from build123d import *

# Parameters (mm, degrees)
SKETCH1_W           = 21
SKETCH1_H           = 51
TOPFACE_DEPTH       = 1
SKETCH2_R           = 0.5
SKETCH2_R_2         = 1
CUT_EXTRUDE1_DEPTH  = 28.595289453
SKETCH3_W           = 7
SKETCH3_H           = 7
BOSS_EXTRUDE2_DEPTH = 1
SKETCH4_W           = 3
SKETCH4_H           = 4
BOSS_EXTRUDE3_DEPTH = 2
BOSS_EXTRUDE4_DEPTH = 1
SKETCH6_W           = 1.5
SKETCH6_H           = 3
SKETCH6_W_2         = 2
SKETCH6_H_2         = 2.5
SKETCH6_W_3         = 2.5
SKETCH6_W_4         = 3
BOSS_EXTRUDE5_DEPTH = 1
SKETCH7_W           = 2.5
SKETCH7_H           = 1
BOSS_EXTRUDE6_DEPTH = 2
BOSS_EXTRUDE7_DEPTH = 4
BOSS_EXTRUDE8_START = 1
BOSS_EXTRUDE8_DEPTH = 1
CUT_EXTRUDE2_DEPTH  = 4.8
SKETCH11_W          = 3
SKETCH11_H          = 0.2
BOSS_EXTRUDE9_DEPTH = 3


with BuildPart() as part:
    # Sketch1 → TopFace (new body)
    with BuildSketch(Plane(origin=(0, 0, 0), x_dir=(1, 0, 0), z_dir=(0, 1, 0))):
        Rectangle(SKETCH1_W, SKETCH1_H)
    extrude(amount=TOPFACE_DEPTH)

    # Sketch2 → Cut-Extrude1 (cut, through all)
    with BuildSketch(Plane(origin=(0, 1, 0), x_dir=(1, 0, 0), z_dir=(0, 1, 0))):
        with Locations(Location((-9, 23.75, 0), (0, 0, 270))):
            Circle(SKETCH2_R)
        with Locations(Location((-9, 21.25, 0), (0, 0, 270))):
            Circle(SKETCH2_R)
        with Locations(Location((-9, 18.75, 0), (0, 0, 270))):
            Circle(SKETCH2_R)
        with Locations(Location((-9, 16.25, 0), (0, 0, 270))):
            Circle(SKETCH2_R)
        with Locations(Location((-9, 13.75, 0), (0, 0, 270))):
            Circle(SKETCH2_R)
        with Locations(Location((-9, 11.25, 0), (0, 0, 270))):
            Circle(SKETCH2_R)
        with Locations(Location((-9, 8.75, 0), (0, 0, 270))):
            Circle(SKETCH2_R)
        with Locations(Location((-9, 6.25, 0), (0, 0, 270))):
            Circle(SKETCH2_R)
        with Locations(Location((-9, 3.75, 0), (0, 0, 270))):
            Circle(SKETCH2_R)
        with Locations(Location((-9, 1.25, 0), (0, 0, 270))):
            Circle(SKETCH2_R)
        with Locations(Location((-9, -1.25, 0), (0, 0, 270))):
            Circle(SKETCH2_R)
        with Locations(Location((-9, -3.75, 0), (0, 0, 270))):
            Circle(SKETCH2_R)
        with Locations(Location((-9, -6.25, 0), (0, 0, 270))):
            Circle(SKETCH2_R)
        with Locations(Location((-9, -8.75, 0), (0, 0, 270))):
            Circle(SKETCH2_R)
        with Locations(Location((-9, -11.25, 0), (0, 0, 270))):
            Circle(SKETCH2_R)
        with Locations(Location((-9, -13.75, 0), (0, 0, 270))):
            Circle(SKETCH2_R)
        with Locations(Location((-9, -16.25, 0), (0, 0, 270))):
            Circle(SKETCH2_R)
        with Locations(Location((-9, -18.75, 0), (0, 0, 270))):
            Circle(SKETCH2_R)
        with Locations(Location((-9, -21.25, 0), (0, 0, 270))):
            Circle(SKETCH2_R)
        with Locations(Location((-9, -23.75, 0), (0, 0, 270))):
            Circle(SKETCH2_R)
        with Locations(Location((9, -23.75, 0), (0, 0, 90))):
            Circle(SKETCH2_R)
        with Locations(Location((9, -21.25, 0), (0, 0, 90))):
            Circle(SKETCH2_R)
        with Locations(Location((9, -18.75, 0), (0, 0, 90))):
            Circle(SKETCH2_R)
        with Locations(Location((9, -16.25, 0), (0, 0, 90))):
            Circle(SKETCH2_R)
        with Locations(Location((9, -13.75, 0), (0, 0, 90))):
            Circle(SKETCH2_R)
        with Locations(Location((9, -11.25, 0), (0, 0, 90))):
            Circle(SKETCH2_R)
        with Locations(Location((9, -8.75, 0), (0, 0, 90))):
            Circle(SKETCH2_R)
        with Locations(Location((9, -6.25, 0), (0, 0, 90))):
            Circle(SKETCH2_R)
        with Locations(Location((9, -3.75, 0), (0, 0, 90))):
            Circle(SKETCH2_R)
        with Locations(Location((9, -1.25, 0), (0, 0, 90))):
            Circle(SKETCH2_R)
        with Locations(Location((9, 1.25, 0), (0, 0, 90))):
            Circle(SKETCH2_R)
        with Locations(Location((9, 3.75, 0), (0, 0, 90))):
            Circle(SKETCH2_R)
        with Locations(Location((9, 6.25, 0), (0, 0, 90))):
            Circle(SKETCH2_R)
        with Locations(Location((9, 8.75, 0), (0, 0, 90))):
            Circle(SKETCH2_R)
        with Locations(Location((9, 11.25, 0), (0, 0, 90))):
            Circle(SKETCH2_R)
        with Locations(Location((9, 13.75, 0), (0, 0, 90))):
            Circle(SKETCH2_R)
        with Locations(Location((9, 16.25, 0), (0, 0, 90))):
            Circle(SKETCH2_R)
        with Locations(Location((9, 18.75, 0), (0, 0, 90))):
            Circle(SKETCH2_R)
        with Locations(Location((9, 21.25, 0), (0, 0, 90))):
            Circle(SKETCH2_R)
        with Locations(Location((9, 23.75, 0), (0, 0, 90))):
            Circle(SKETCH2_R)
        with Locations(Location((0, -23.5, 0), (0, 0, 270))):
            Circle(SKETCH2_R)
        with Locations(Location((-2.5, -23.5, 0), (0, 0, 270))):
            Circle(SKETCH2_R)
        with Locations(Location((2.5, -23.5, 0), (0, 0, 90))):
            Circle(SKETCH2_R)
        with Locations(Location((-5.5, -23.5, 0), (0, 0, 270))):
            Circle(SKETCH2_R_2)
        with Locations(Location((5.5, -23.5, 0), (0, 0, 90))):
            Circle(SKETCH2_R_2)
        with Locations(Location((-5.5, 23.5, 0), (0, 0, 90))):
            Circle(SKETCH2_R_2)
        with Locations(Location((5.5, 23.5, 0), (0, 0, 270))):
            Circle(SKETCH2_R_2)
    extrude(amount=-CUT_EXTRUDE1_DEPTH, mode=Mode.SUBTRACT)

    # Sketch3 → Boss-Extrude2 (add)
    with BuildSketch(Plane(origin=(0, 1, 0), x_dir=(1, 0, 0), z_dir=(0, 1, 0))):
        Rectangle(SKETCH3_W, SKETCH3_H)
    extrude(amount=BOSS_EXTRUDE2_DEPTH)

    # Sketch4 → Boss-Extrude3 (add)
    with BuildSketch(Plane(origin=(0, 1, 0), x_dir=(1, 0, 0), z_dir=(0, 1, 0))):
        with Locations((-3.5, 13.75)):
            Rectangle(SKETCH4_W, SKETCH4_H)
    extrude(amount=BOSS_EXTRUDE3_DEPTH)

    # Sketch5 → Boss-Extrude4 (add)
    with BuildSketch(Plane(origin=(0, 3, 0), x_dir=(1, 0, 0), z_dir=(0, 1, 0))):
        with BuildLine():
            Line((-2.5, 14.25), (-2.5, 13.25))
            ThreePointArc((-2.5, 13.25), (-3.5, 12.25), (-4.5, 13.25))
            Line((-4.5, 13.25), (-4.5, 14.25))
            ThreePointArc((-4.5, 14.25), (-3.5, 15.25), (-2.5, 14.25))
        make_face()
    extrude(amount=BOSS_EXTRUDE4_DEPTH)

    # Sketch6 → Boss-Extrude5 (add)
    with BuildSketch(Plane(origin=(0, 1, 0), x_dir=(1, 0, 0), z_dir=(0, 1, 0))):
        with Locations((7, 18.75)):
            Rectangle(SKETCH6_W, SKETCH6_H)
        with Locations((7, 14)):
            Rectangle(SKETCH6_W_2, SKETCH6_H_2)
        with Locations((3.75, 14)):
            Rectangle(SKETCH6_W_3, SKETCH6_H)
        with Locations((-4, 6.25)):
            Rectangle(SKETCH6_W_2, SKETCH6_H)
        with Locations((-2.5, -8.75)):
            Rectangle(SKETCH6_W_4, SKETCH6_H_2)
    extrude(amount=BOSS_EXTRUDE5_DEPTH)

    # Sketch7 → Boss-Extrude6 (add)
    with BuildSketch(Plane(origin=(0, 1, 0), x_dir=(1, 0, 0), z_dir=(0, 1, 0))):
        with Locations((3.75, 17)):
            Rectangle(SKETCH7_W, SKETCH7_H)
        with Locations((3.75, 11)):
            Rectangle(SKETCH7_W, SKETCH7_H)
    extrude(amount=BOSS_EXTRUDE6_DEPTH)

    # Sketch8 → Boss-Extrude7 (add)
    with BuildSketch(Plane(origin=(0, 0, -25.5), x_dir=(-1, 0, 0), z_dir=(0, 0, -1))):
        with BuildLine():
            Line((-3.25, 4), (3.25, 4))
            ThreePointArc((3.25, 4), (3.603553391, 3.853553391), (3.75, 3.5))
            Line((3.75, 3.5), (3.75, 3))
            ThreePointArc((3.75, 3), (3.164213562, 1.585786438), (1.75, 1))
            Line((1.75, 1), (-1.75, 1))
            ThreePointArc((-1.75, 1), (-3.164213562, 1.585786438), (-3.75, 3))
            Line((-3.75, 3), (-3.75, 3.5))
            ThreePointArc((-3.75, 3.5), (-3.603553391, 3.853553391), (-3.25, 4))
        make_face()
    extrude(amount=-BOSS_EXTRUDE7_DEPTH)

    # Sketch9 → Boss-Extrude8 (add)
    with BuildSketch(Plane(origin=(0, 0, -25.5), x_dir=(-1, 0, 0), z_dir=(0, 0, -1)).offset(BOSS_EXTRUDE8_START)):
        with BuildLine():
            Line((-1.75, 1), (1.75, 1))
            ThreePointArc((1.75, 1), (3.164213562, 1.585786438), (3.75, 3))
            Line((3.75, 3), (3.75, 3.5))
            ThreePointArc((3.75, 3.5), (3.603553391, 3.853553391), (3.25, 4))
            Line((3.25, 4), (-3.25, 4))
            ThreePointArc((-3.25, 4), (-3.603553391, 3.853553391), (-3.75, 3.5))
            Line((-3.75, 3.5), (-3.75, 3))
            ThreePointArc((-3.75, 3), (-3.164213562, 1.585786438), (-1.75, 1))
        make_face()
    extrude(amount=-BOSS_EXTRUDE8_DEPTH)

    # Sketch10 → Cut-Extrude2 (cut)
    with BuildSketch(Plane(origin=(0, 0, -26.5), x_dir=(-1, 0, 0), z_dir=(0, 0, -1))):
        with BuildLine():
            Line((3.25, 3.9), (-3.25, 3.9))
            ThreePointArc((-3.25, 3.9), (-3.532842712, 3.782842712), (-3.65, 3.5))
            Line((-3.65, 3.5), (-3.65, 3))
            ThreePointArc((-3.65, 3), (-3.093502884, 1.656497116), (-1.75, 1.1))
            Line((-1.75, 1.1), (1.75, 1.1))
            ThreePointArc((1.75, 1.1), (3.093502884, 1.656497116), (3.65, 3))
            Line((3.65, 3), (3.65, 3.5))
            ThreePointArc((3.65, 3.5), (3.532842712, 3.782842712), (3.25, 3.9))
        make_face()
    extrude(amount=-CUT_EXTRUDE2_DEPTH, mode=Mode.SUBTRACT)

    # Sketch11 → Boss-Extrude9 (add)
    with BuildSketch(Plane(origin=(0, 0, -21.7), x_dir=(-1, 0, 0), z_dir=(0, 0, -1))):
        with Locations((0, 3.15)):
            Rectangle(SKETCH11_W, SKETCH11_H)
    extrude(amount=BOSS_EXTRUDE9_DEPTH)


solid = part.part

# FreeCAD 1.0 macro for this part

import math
import FreeCAD as App
import Part
import Sketcher

doc = App.newDocument("Part")
body = doc.addObject("PartDesign::Body", "Body")

sketch1 = body.newObject("Sketcher::SketchObject", "Sketch")
sketch1.AttachmentSupport = (doc.getObject("XZ_Plane"), [""])
sketch1.MapMode = "FlatFace"
sketch1.addGeometry([
    Part.LineSegment(App.Vector(-10.5, -25.5, 0), App.Vector(-10.5, 25.5, 0)),
    Part.LineSegment(App.Vector(-10.5, 25.5, 0), App.Vector(10.5, 25.5, 0)),
    Part.LineSegment(App.Vector(10.5, 25.5, 0), App.Vector(10.5, -25.5, 0)),
    Part.LineSegment(App.Vector(10.5, -25.5, 0), App.Vector(-10.5, -25.5, 0)),
], False)
sketch1.addConstraint([
    Sketcher.Constraint("Coincident", 0, 2, 1, 1),
    Sketcher.Constraint("Coincident", 1, 2, 2, 1),
    Sketcher.Constraint("Coincident", 2, 2, 3, 1),
    Sketcher.Constraint("Coincident", 3, 2, 0, 1),
    Sketcher.Constraint("Vertical", 0),
    Sketcher.Constraint("Horizontal", 1),
    Sketcher.Constraint("Vertical", 2),
    Sketcher.Constraint("Horizontal", 3),
    Sketcher.Constraint("Symmetric", 0, 2, 2, 2, -1, 1),
    Sketcher.Constraint("DistanceX", 1, 1, 1, 2, 21.0),
    Sketcher.Constraint("DistanceY", 0, 1, 0, 2, 51.0),
])
pad1 = body.newObject("PartDesign::Pad", "Pad")
pad1.Profile = sketch1
pad1.Length = 1
pad1.Reversed = True

sketch2 = body.newObject("Sketcher::SketchObject", "Sketch001")
sketch2.AttachmentSupport = (doc.getObject("XZ_Plane"), [""])
sketch2.MapMode = "FlatFace"
sketch2.AttachmentOffset = App.Placement(App.Vector(0, 0, -1), App.Rotation())
sketch2.addGeometry([
    Part.Circle(App.Vector(-9, -23.75, 0), App.Vector(0, 0, 1), 0.5),
    Part.Circle(App.Vector(-9, -21.25, 0), App.Vector(0, 0, 1), 0.5),
    Part.Circle(App.Vector(-9, -18.75, 0), App.Vector(0, 0, 1), 0.5),
    Part.Circle(App.Vector(-9, -16.25, 0), App.Vector(0, 0, 1), 0.5),
    Part.Circle(App.Vector(-9, -13.75, 0), App.Vector(0, 0, 1), 0.5),
    Part.Circle(App.Vector(-9, -11.25, 0), App.Vector(0, 0, 1), 0.5),
    Part.Circle(App.Vector(-9, -8.75, 0), App.Vector(0, 0, 1), 0.5),
    Part.Circle(App.Vector(-9, -6.25, 0), App.Vector(0, 0, 1), 0.5),
    Part.Circle(App.Vector(-9, -3.75, 0), App.Vector(0, 0, 1), 0.5),
    Part.Circle(App.Vector(-9, -1.25, 0), App.Vector(0, 0, 1), 0.5),
    Part.Circle(App.Vector(-9, 1.25, 0), App.Vector(0, 0, 1), 0.5),
    Part.Circle(App.Vector(-9, 3.75, 0), App.Vector(0, 0, 1), 0.5),
    Part.Circle(App.Vector(-9, 6.25, 0), App.Vector(0, 0, 1), 0.5),
    Part.Circle(App.Vector(-9, 8.75, 0), App.Vector(0, 0, 1), 0.5),
    Part.Circle(App.Vector(-9, 11.25, 0), App.Vector(0, 0, 1), 0.5),
    Part.Circle(App.Vector(-9, 13.75, 0), App.Vector(0, 0, 1), 0.5),
    Part.Circle(App.Vector(-9, 16.25, 0), App.Vector(0, 0, 1), 0.5),
    Part.Circle(App.Vector(-9, 18.75, 0), App.Vector(0, 0, 1), 0.5),
    Part.Circle(App.Vector(-9, 21.25, 0), App.Vector(0, 0, 1), 0.5),
    Part.Circle(App.Vector(-9, 23.75, 0), App.Vector(0, 0, 1), 0.5),
    Part.Circle(App.Vector(9, 23.75, 0), App.Vector(0, 0, 1), 0.5),
    Part.Circle(App.Vector(9, 21.25, 0), App.Vector(0, 0, 1), 0.5),
    Part.Circle(App.Vector(9, 18.75, 0), App.Vector(0, 0, 1), 0.5),
    Part.Circle(App.Vector(9, 16.25, 0), App.Vector(0, 0, 1), 0.5),
    Part.Circle(App.Vector(9, 13.75, 0), App.Vector(0, 0, 1), 0.5),
    Part.Circle(App.Vector(9, 11.25, 0), App.Vector(0, 0, 1), 0.5),
    Part.Circle(App.Vector(9, 8.75, 0), App.Vector(0, 0, 1), 0.5),
    Part.Circle(App.Vector(9, 6.25, 0), App.Vector(0, 0, 1), 0.5),
    Part.Circle(App.Vector(9, 3.75, 0), App.Vector(0, 0, 1), 0.5),
    Part.Circle(App.Vector(9, 1.25, 0), App.Vector(0, 0, 1), 0.5),
    Part.Circle(App.Vector(9, -1.25, 0), App.Vector(0, 0, 1), 0.5),
    Part.Circle(App.Vector(9, -3.75, 0), App.Vector(0, 0, 1), 0.5),
    Part.Circle(App.Vector(9, -6.25, 0), App.Vector(0, 0, 1), 0.5),
    Part.Circle(App.Vector(9, -8.75, 0), App.Vector(0, 0, 1), 0.5),
    Part.Circle(App.Vector(9, -11.25, 0), App.Vector(0, 0, 1), 0.5),
    Part.Circle(App.Vector(9, -13.75, 0), App.Vector(0, 0, 1), 0.5),
    Part.Circle(App.Vector(9, -16.25, 0), App.Vector(0, 0, 1), 0.5),
    Part.Circle(App.Vector(9, -18.75, 0), App.Vector(0, 0, 1), 0.5),
    Part.Circle(App.Vector(9, -21.25, 0), App.Vector(0, 0, 1), 0.5),
    Part.Circle(App.Vector(9, -23.75, 0), App.Vector(0, 0, 1), 0.5),
    Part.Circle(App.Vector(0, 23.5, 0), App.Vector(0, 0, 1), 0.5),
    Part.Circle(App.Vector(-2.5, 23.5, 0), App.Vector(0, 0, 1), 0.5),
    Part.Circle(App.Vector(2.5, 23.5, 0), App.Vector(0, 0, 1), 0.5),
    Part.Circle(App.Vector(-5.5, 23.5, 0), App.Vector(0, 0, 1), 1),
    Part.Circle(App.Vector(5.5, 23.5, 0), App.Vector(0, 0, 1), 1),
    Part.Circle(App.Vector(-5.5, -23.5, 0), App.Vector(0, 0, 1), 1),
    Part.Circle(App.Vector(5.5, -23.5, 0), App.Vector(0, 0, 1), 1),
], False)
sketch2.addConstraint([
    Sketcher.Constraint("Equal", 0, 1),
    Sketcher.Constraint("Equal", 1, 2),
    Sketcher.Constraint("Equal", 2, 3),
    Sketcher.Constraint("Equal", 3, 4),
    Sketcher.Constraint("Equal", 4, 5),
    Sketcher.Constraint("Equal", 5, 6),
    Sketcher.Constraint("Equal", 6, 7),
    Sketcher.Constraint("Equal", 7, 8),
    Sketcher.Constraint("Equal", 8, 9),
    Sketcher.Constraint("Equal", 9, 10),
    Sketcher.Constraint("Equal", 10, 11),
    Sketcher.Constraint("Equal", 11, 12),
    Sketcher.Constraint("Equal", 12, 13),
    Sketcher.Constraint("Equal", 13, 14),
    Sketcher.Constraint("Equal", 14, 15),
    Sketcher.Constraint("Equal", 15, 16),
    Sketcher.Constraint("Equal", 16, 17),
    Sketcher.Constraint("Equal", 17, 18),
    Sketcher.Constraint("Equal", 18, 19),
    Sketcher.Constraint("Equal", 19, 20),
    Sketcher.Constraint("Equal", 20, 21),
    Sketcher.Constraint("Equal", 21, 22),
    Sketcher.Constraint("Equal", 22, 23),
    Sketcher.Constraint("Equal", 23, 24),
    Sketcher.Constraint("Equal", 24, 25),
    Sketcher.Constraint("Equal", 25, 26),
    Sketcher.Constraint("Equal", 26, 27),
    Sketcher.Constraint("Equal", 27, 28),
    Sketcher.Constraint("Equal", 28, 29),
    Sketcher.Constraint("Equal", 29, 30),
    Sketcher.Constraint("Equal", 30, 31),
    Sketcher.Constraint("Equal", 31, 32),
    Sketcher.Constraint("Equal", 32, 33),
    Sketcher.Constraint("Equal", 33, 34),
    Sketcher.Constraint("Equal", 34, 35),
    Sketcher.Constraint("Equal", 35, 36),
    Sketcher.Constraint("Equal", 36, 37),
    Sketcher.Constraint("Equal", 37, 38),
    Sketcher.Constraint("Equal", 38, 39),
    Sketcher.Constraint("Equal", 39, 40),
    Sketcher.Constraint("Equal", 40, 41),
    Sketcher.Constraint("Equal", 41, 42),
    Sketcher.Constraint("Equal", 43, 44),
    Sketcher.Constraint("Equal", 44, 45),
    Sketcher.Constraint("Equal", 45, 46),
    Sketcher.Constraint("Symmetric", 0, 3, 20, 3, -1, 1),
    Sketcher.Constraint("Symmetric", 1, 3, 21, 3, -1, 1),
    Sketcher.Constraint("Symmetric", 2, 3, 22, 3, -1, 1),
    Sketcher.Constraint("Symmetric", 3, 3, 23, 3, -1, 1),
    Sketcher.Constraint("Symmetric", 4, 3, 24, 3, -1, 1),
    Sketcher.Constraint("Symmetric", 5, 3, 25, 3, -1, 1),
    Sketcher.Constraint("Symmetric", 6, 3, 26, 3, -1, 1),
    Sketcher.Constraint("Symmetric", 7, 3, 27, 3, -1, 1),
    Sketcher.Constraint("Symmetric", 8, 3, 28, 3, -1, 1),
    Sketcher.Constraint("Symmetric", 9, 3, 29, 3, -1, 1),
    Sketcher.Constraint("Symmetric", 10, 3, 30, 3, -1, 1),
    Sketcher.Constraint("Symmetric", 11, 3, 31, 3, -1, 1),
    Sketcher.Constraint("Symmetric", 12, 3, 32, 3, -1, 1),
    Sketcher.Constraint("Symmetric", 13, 3, 33, 3, -1, 1),
    Sketcher.Constraint("Symmetric", 14, 3, 34, 3, -1, 1),
    Sketcher.Constraint("Symmetric", 15, 3, 35, 3, -1, 1),
    Sketcher.Constraint("Symmetric", 16, 3, 36, 3, -1, 1),
    Sketcher.Constraint("Symmetric", 17, 3, 37, 3, -1, 1),
    Sketcher.Constraint("Symmetric", 18, 3, 38, 3, -1, 1),
    Sketcher.Constraint("Symmetric", 19, 3, 39, 3, -1, 1),
    Sketcher.Constraint("Symmetric", 44, 3, 45, 3, -1, 1),
    Sketcher.Constraint("Symmetric", 43, 3, 46, 3, -1, 1),
    Sketcher.Constraint("Symmetric", 19, 3, 20, 3, -2),
    Sketcher.Constraint("Symmetric", 18, 3, 21, 3, -2),
    Sketcher.Constraint("Symmetric", 17, 3, 22, 3, -2),
    Sketcher.Constraint("Symmetric", 16, 3, 23, 3, -2),
    Sketcher.Constraint("Symmetric", 15, 3, 24, 3, -2),
    Sketcher.Constraint("Symmetric", 14, 3, 25, 3, -2),
    Sketcher.Constraint("Symmetric", 13, 3, 26, 3, -2),
    Sketcher.Constraint("Symmetric", 12, 3, 27, 3, -2),
    Sketcher.Constraint("Symmetric", 11, 3, 28, 3, -2),
    Sketcher.Constraint("Symmetric", 10, 3, 29, 3, -2),
    Sketcher.Constraint("Symmetric", 41, 3, 42, 3, -2),
    Sketcher.Constraint("Symmetric", 43, 3, 44, 3, -2),
    Sketcher.Constraint("PointOnObject", 40, 3, -2),
    Sketcher.Constraint("Horizontal", 40, 3, 41, 3),
    Sketcher.Constraint("Horizontal", 42, 3, 43, 3),
    Sketcher.Constraint("Vertical", 0, 3, 1, 3),
    Sketcher.Constraint("Vertical", 1, 3, 2, 3),
    Sketcher.Constraint("Vertical", 2, 3, 3, 3),
    Sketcher.Constraint("Vertical", 3, 3, 4, 3),
    Sketcher.Constraint("Vertical", 4, 3, 5, 3),
    Sketcher.Constraint("Vertical", 5, 3, 6, 3),
    Sketcher.Constraint("Vertical", 6, 3, 7, 3),
    Sketcher.Constraint("Vertical", 7, 3, 8, 3),
    Sketcher.Constraint("Vertical", 8, 3, 9, 3),
    Sketcher.Constraint("Diameter", 0, 1.0),
    Sketcher.Constraint("Diameter", 43, 2.0),
    Sketcher.Constraint("DistanceX", 0, 3, -1, 1, 9.0),
    Sketcher.Constraint("DistanceY", 0, 3, 2, 3, 5.0),
    Sketcher.Constraint("DistanceY", 1, 3, 3, 3, 5.0),
    Sketcher.Constraint("DistanceY", 2, 3, 4, 3, 5.0),
    Sketcher.Constraint("DistanceY", 3, 3, 5, 3, 5.0),
    Sketcher.Constraint("DistanceY", 4, 3, 6, 3, 5.0),
    Sketcher.Constraint("DistanceY", 5, 3, 7, 3, 5.0),
    Sketcher.Constraint("DistanceY", 6, 3, 8, 3, 5.0),
    Sketcher.Constraint("DistanceY", 7, 3, 9, 3, 5.0),
    Sketcher.Constraint("DistanceY", 8, 3, 10, 3, 5.0),
    Sketcher.Constraint("DistanceX", 41, 3, 42, 3, 5.0),
    Sketcher.Constraint("DistanceX", 43, 3, 41, 3, 3.0),
    Sketcher.Constraint("DistanceY", -1, 1, 40, 3, 23.5),
    Sketcher.Constraint("DistanceY", 0, 3, 1, 3, 2.5),
])
pocket1 = body.newObject("PartDesign::Pocket", "Pocket")
pocket1.Profile = sketch2
pocket1.Type = "ThroughAll"
pocket1.Reversed = True

sketch3 = body.newObject("Sketcher::SketchObject", "Sketch002")
sketch3.AttachmentSupport = (doc.getObject("XZ_Plane"), [""])
sketch3.MapMode = "FlatFace"
sketch3.AttachmentOffset = App.Placement(App.Vector(0, 0, -1), App.Rotation())
sketch3.addGeometry([
    Part.LineSegment(App.Vector(-3.5, -3.5, 0), App.Vector(-3.5, 3.5, 0)),
    Part.LineSegment(App.Vector(-3.5, 3.5, 0), App.Vector(3.5, 3.5, 0)),
    Part.LineSegment(App.Vector(3.5, 3.5, 0), App.Vector(3.5, -3.5, 0)),
    Part.LineSegment(App.Vector(3.5, -3.5, 0), App.Vector(-3.5, -3.5, 0)),
], False)
sketch3.addConstraint([
    Sketcher.Constraint("Coincident", 0, 2, 1, 1),
    Sketcher.Constraint("Coincident", 1, 2, 2, 1),
    Sketcher.Constraint("Coincident", 2, 2, 3, 1),
    Sketcher.Constraint("Coincident", 3, 2, 0, 1),
    Sketcher.Constraint("Vertical", 0),
    Sketcher.Constraint("Horizontal", 1),
    Sketcher.Constraint("Vertical", 2),
    Sketcher.Constraint("Horizontal", 3),
    Sketcher.Constraint("Symmetric", 0, 2, 2, 2, -1, 1),
    Sketcher.Constraint("Equal", 3, 0),
    Sketcher.Constraint("DistanceX", 1, 1, 1, 2, 7.0),
])
pad2 = body.newObject("PartDesign::Pad", "Pad001")
pad2.Profile = sketch3
pad2.Length = 1
pad2.Reversed = True

sketch4 = body.newObject("Sketcher::SketchObject", "Sketch003")
sketch4.AttachmentSupport = (doc.getObject("XZ_Plane"), [""])
sketch4.MapMode = "FlatFace"
sketch4.AttachmentOffset = App.Placement(App.Vector(0, 0, -1), App.Rotation())
sketch4.addGeometry([
    Part.LineSegment(App.Vector(-5, -15.75, 0), App.Vector(-5, -11.75, 0)),
    Part.LineSegment(App.Vector(-5, -11.75, 0), App.Vector(-2, -11.75, 0)),
    Part.LineSegment(App.Vector(-2, -11.75, 0), App.Vector(-2, -15.75, 0)),
    Part.LineSegment(App.Vector(-2, -15.75, 0), App.Vector(-5, -15.75, 0)),
], False)
sketch4.addConstraint([
    Sketcher.Constraint("Coincident", 0, 2, 1, 1),
    Sketcher.Constraint("Coincident", 1, 2, 2, 1),
    Sketcher.Constraint("Coincident", 2, 2, 3, 1),
    Sketcher.Constraint("Coincident", 3, 2, 0, 1),
    Sketcher.Constraint("Vertical", 0),
    Sketcher.Constraint("Horizontal", 1),
    Sketcher.Constraint("Vertical", 2),
    Sketcher.Constraint("Horizontal", 3),
    Sketcher.Constraint("DistanceX", 1, 1, 1, 2, 3.0),
    Sketcher.Constraint("DistanceY", 0, 1, 0, 2, 4.0),
    Sketcher.Constraint("DistanceX", 0, 2, -1, 1, 5.0),
    Sketcher.Constraint("DistanceY", 0, 2, -1, 1, 11.75),
])
pad3 = body.newObject("PartDesign::Pad", "Pad002")
pad3.Profile = sketch4
pad3.Length = 2
pad3.Reversed = True

sketch5 = body.newObject("Sketcher::SketchObject", "Sketch004")
sketch5.AttachmentSupport = (doc.getObject("XZ_Plane"), [""])
sketch5.MapMode = "FlatFace"
sketch5.AttachmentOffset = App.Placement(App.Vector(0, 0, -3), App.Rotation())
sketch5.addGeometry([
    Part.LineSegment(App.Vector(-2.5, -13.25, 0), App.Vector(-2.5, -14.25, 0)),
    Part.ArcOfCircle(Part.Circle(App.Vector(-3.5, -14.25, 0), App.Vector(0, 0, 1), 1), math.radians(180), math.radians(360)),
    Part.LineSegment(App.Vector(-4.5, -14.25, 0), App.Vector(-4.5, -13.25, 0)),
    Part.ArcOfCircle(Part.Circle(App.Vector(-3.5, -13.25, 0), App.Vector(0, 0, 1), 1), math.radians(0), math.radians(180)),
], False)
sketch5.addConstraint([
    Sketcher.Constraint("Tangent", 0, 2, 1, 2),
    Sketcher.Constraint("Tangent", 1, 1, 2, 1),
    Sketcher.Constraint("Tangent", 2, 2, 3, 2),
    Sketcher.Constraint("Tangent", 3, 1, 0, 1),
    Sketcher.Constraint("Vertical", 0),
    Sketcher.Constraint("Vertical", 2),
    Sketcher.Constraint("Radius", 1, 1.0),
    Sketcher.Constraint("DistanceY", 0, 2, 0, 1, 1.0),
    Sketcher.Constraint("DistanceX", 1, 3, -1, 1, 3.5),
    Sketcher.Constraint("DistanceY", 1, 3, -1, 1, 14.25),
])
pad4 = body.newObject("PartDesign::Pad", "Pad003")
pad4.Profile = sketch5
pad4.Length = 1
pad4.Reversed = True

sketch6 = body.newObject("Sketcher::SketchObject", "Sketch005")
sketch6.AttachmentSupport = (doc.getObject("XZ_Plane"), [""])
sketch6.MapMode = "FlatFace"
sketch6.AttachmentOffset = App.Placement(App.Vector(0, 0, -1), App.Rotation())
sketch6.addGeometry([
    Part.LineSegment(App.Vector(6.25, -20.25, 0), App.Vector(6.25, -17.25, 0)),
    Part.LineSegment(App.Vector(6.25, -17.25, 0), App.Vector(7.75, -17.25, 0)),
    Part.LineSegment(App.Vector(7.75, -17.25, 0), App.Vector(7.75, -20.25, 0)),
    Part.LineSegment(App.Vector(7.75, -20.25, 0), App.Vector(6.25, -20.25, 0)),
    Part.LineSegment(App.Vector(6, -15.25, 0), App.Vector(6, -12.75, 0)),
    Part.LineSegment(App.Vector(6, -12.75, 0), App.Vector(8, -12.75, 0)),
    Part.LineSegment(App.Vector(8, -12.75, 0), App.Vector(8, -15.25, 0)),
    Part.LineSegment(App.Vector(8, -15.25, 0), App.Vector(6, -15.25, 0)),
    Part.LineSegment(App.Vector(2.5, -15.5, 0), App.Vector(2.5, -12.5, 0)),
    Part.LineSegment(App.Vector(2.5, -12.5, 0), App.Vector(5, -12.5, 0)),
    Part.LineSegment(App.Vector(5, -12.5, 0), App.Vector(5, -15.5, 0)),
    Part.LineSegment(App.Vector(5, -15.5, 0), App.Vector(2.5, -15.5, 0)),
    Part.LineSegment(App.Vector(-5, -7.75, 0), App.Vector(-5, -4.75, 0)),
    Part.LineSegment(App.Vector(-5, -4.75, 0), App.Vector(-3, -4.75, 0)),
    Part.LineSegment(App.Vector(-3, -4.75, 0), App.Vector(-3, -7.75, 0)),
    Part.LineSegment(App.Vector(-3, -7.75, 0), App.Vector(-5, -7.75, 0)),
    Part.LineSegment(App.Vector(-4, 7.5, 0), App.Vector(-4, 10, 0)),
    Part.LineSegment(App.Vector(-4, 10, 0), App.Vector(-1, 10, 0)),
    Part.LineSegment(App.Vector(-1, 10, 0), App.Vector(-1, 7.5, 0)),
    Part.LineSegment(App.Vector(-1, 7.5, 0), App.Vector(-4, 7.5, 0)),
], False)
sketch6.addConstraint([
    Sketcher.Constraint("Coincident", 0, 2, 1, 1),
    Sketcher.Constraint("Coincident", 1, 2, 2, 1),
    Sketcher.Constraint("Coincident", 2, 2, 3, 1),
    Sketcher.Constraint("Coincident", 3, 2, 0, 1),
    Sketcher.Constraint("Coincident", 4, 2, 5, 1),
    Sketcher.Constraint("Coincident", 5, 2, 6, 1),
    Sketcher.Constraint("Coincident", 6, 2, 7, 1),
    Sketcher.Constraint("Coincident", 7, 2, 4, 1),
    Sketcher.Constraint("Coincident", 8, 2, 9, 1),
    Sketcher.Constraint("Coincident", 9, 2, 10, 1),
    Sketcher.Constraint("Coincident", 10, 2, 11, 1),
    Sketcher.Constraint("Coincident", 11, 2, 8, 1),
    Sketcher.Constraint("Coincident", 12, 2, 13, 1),
    Sketcher.Constraint("Coincident", 13, 2, 14, 1),
    Sketcher.Constraint("Coincident", 14, 2, 15, 1),
    Sketcher.Constraint("Coincident", 15, 2, 12, 1),
    Sketcher.Constraint("Coincident", 16, 2, 17, 1),
    Sketcher.Constraint("Coincident", 17, 2, 18, 1),
    Sketcher.Constraint("Coincident", 18, 2, 19, 1),
    Sketcher.Constraint("Coincident", 19, 2, 16, 1),
    Sketcher.Constraint("Vertical", 0),
    Sketcher.Constraint("Horizontal", 1),
    Sketcher.Constraint("Vertical", 2),
    Sketcher.Constraint("Horizontal", 3),
    Sketcher.Constraint("Vertical", 4),
    Sketcher.Constraint("Horizontal", 5),
    Sketcher.Constraint("Vertical", 6),
    Sketcher.Constraint("Horizontal", 7),
    Sketcher.Constraint("Vertical", 8),
    Sketcher.Constraint("Horizontal", 9),
    Sketcher.Constraint("Vertical", 10),
    Sketcher.Constraint("Horizontal", 11),
    Sketcher.Constraint("Vertical", 12),
    Sketcher.Constraint("Horizontal", 13),
    Sketcher.Constraint("Vertical", 14),
    Sketcher.Constraint("Horizontal", 15),
    Sketcher.Constraint("Vertical", 16),
    Sketcher.Constraint("Horizontal", 17),
    Sketcher.Constraint("Vertical", 18),
    Sketcher.Constraint("Horizontal", 19),
    Sketcher.Constraint("Equal", 7, 13),
    Sketcher.Constraint("Equal", 19, 0),
    Sketcher.Constraint("Equal", 11, 4),
    Sketcher.Constraint("Equal", 2, 8),
    Sketcher.Constraint("Equal", 10, 12),
    Sketcher.Constraint("Equal", 6, 16),
    Sketcher.Constraint("DistanceX", 5, 1, 5, 2, 2.0),
    Sketcher.Constraint("DistanceX", 17, 1, 17, 2, 3.0),
    Sketcher.Constraint("DistanceX", 1, 1, 1, 2, 1.5),
    Sketcher.Constraint("DistanceX", 9, 1, 9, 2, 2.5),
    Sketcher.Constraint("DistanceX", -1, 1, 4, 2, 6.0),
    Sketcher.Constraint("DistanceX", -1, 1, 9, 2, 5.0),
    Sketcher.Constraint("DistanceX", 12, 2, -1, 1, 5.0),
    Sketcher.Constraint("DistanceX", 16, 2, -1, 1, 4.0),
    Sketcher.Constraint("DistanceY", -1, 1, 16, 2, 10.0),
    Sketcher.Constraint("DistanceY", 1, 2, 6, 2, 2.0),
    Sketcher.Constraint("DistanceY", 4, 2, 12, 2, 8.0),
    Sketcher.Constraint("DistanceY", 8, 2, -1, 1, 12.5),
    Sketcher.Constraint("DistanceX", -1, 1, 0, 2, 6.25),
    Sketcher.Constraint("DistanceY", 0, 2, -1, 1, 17.25),
])
pad5 = body.newObject("PartDesign::Pad", "Pad004")
pad5.Profile = sketch6
pad5.Length = 1
pad5.Reversed = True

sketch7 = body.newObject("Sketcher::SketchObject", "Sketch006")
sketch7.AttachmentSupport = (doc.getObject("XZ_Plane"), [""])
sketch7.MapMode = "FlatFace"
sketch7.AttachmentOffset = App.Placement(App.Vector(0, 0, -1), App.Rotation())
sketch7.addGeometry([
    Part.LineSegment(App.Vector(2.5, -17.5, 0), App.Vector(2.5, -16.5, 0)),
    Part.LineSegment(App.Vector(2.5, -16.5, 0), App.Vector(5, -16.5, 0)),
    Part.LineSegment(App.Vector(5, -16.5, 0), App.Vector(5, -17.5, 0)),
    Part.LineSegment(App.Vector(5, -17.5, 0), App.Vector(2.5, -17.5, 0)),
    Part.LineSegment(App.Vector(2.5, -11.5, 0), App.Vector(2.5, -10.5, 0)),
    Part.LineSegment(App.Vector(2.5, -10.5, 0), App.Vector(5, -10.5, 0)),
    Part.LineSegment(App.Vector(5, -10.5, 0), App.Vector(5, -11.5, 0)),
    Part.LineSegment(App.Vector(5, -11.5, 0), App.Vector(2.5, -11.5, 0)),
], False)
sketch7.addConstraint([
    Sketcher.Constraint("Coincident", 0, 2, 1, 1),
    Sketcher.Constraint("Coincident", 1, 2, 2, 1),
    Sketcher.Constraint("Coincident", 2, 2, 3, 1),
    Sketcher.Constraint("Coincident", 3, 2, 0, 1),
    Sketcher.Constraint("Coincident", 4, 2, 5, 1),
    Sketcher.Constraint("Coincident", 5, 2, 6, 1),
    Sketcher.Constraint("Coincident", 6, 2, 7, 1),
    Sketcher.Constraint("Coincident", 7, 2, 4, 1),
    Sketcher.Constraint("Vertical", 0),
    Sketcher.Constraint("Horizontal", 1),
    Sketcher.Constraint("Vertical", 2),
    Sketcher.Constraint("Horizontal", 3),
    Sketcher.Constraint("Vertical", 4),
    Sketcher.Constraint("Horizontal", 5),
    Sketcher.Constraint("Vertical", 6),
    Sketcher.Constraint("Horizontal", 7),
    Sketcher.Constraint("Vertical", 3, 2, 4, 2),
    Sketcher.Constraint("Vertical", 2, 2, 5, 2),
    Sketcher.Constraint("Equal", 2, 4),
    Sketcher.Constraint("DistanceY", 0, 1, 0, 2, 1.0),
    Sketcher.Constraint("DistanceX", 1, 1, 1, 2, 2.5),
    Sketcher.Constraint("DistanceX", -1, 1, 1, 2, 5.0),
    Sketcher.Constraint("DistanceY", 0, 2, 4, 2, 6.0),
    Sketcher.Constraint("DistanceY", 0, 2, -1, 1, 16.5),
])
pad6 = body.newObject("PartDesign::Pad", "Pad005")
pad6.Profile = sketch7
pad6.Length = 2
pad6.Reversed = True

sketch8 = body.newObject("Sketcher::SketchObject", "Sketch007")
sketch8.AttachmentSupport = (doc.getObject("XY_Plane"), [""])
sketch8.MapMode = "FlatFace"
sketch8.AttachmentOffset = App.Placement(App.Vector(0, 0, -25.5), App.Rotation())
sketch8.addGeometry([
    Part.LineSegment(App.Vector(-3.25, 4, 0), App.Vector(3.25, 4, 0)),
    Part.ArcOfCircle(Part.Circle(App.Vector(3.25, 3.5, 0), App.Vector(0, 0, 1), 0.5), math.radians(0), math.radians(90)),
    Part.LineSegment(App.Vector(3.75, 3.5, 0), App.Vector(3.75, 3, 0)),
    Part.ArcOfCircle(Part.Circle(App.Vector(1.75, 3, 0), App.Vector(0, 0, 1), 2), math.radians(-90), math.radians(0)),
    Part.LineSegment(App.Vector(1.75, 1, 0), App.Vector(-1.75, 1, 0)),
    Part.ArcOfCircle(Part.Circle(App.Vector(-1.75, 3, 0), App.Vector(0, 0, 1), 2), math.radians(-180), math.radians(-90)),
    Part.LineSegment(App.Vector(-3.75, 3, 0), App.Vector(-3.75, 3.5, 0)),
    Part.ArcOfCircle(Part.Circle(App.Vector(-3.25, 3.5, 0), App.Vector(0, 0, 1), 0.5), math.radians(90), math.radians(180)),
], False)
sketch8.addConstraint([
    Sketcher.Constraint("Tangent", 0, 2, 1, 2),
    Sketcher.Constraint("Tangent", 1, 1, 2, 1),
    Sketcher.Constraint("Tangent", 2, 2, 3, 2),
    Sketcher.Constraint("Tangent", 3, 1, 4, 1),
    Sketcher.Constraint("Tangent", 4, 2, 5, 2),
    Sketcher.Constraint("Tangent", 5, 1, 6, 1),
    Sketcher.Constraint("Tangent", 6, 2, 7, 2),
    Sketcher.Constraint("Tangent", 7, 1, 0, 1),
    Sketcher.Constraint("Horizontal", 0),
    Sketcher.Constraint("Vertical", 2),
    Sketcher.Constraint("Horizontal", 4),
    Sketcher.Constraint("Vertical", 6),
    Sketcher.Constraint("Equal", 3, 5),
    Sketcher.Constraint("Equal", 1, 7),
    Sketcher.Constraint("Radius", 3, 2.0),
    Sketcher.Constraint("Radius", 1, 0.5),
    Sketcher.Constraint("DistanceX", 0, 1, 0, 2, 6.5),
    Sketcher.Constraint("DistanceY", 2, 2, 2, 1, 0.5),
    Sketcher.Constraint("DistanceY", -1, 1, 3, 3, 3.0),
    Sketcher.Constraint("DistanceX", -1, 1, 1, 3, 3.25),
])
pad7 = body.newObject("PartDesign::Pad", "Pad006")
pad7.Profile = sketch8
pad7.Length = 4

sketch9 = body.newObject("Sketcher::SketchObject", "Sketch008")
sketch9.AttachmentSupport = (doc.getObject("XY_Plane"), [""])
sketch9.MapMode = "FlatFace"
sketch9.AttachmentOffset = App.Placement(App.Vector(0, 0, -26.5), App.Rotation())
sketch9.addGeometry([
    Part.LineSegment(App.Vector(1.75, 1, 0), App.Vector(-1.75, 1, 0)),
    Part.ArcOfCircle(Part.Circle(App.Vector(-1.75, 3, 0), App.Vector(0, 0, 1), 2), math.radians(-180), math.radians(-90)),
    Part.LineSegment(App.Vector(-3.75, 3, 0), App.Vector(-3.75, 3.5, 0)),
    Part.ArcOfCircle(Part.Circle(App.Vector(-3.25, 3.5, 0), App.Vector(0, 0, 1), 0.5), math.radians(90), math.radians(180)),
    Part.LineSegment(App.Vector(-3.25, 4, 0), App.Vector(3.25, 4, 0)),
    Part.ArcOfCircle(Part.Circle(App.Vector(3.25, 3.5, 0), App.Vector(0, 0, 1), 0.5), math.radians(0), math.radians(90)),
    Part.LineSegment(App.Vector(3.75, 3.5, 0), App.Vector(3.75, 3, 0)),
    Part.ArcOfCircle(Part.Circle(App.Vector(1.75, 3, 0), App.Vector(0, 0, 1), 2), math.radians(-90), math.radians(0)),
], False)
sketch9.addConstraint([
    Sketcher.Constraint("Tangent", 0, 2, 1, 2),
    Sketcher.Constraint("Tangent", 1, 1, 2, 1),
    Sketcher.Constraint("Tangent", 2, 2, 3, 2),
    Sketcher.Constraint("Tangent", 3, 1, 4, 1),
    Sketcher.Constraint("Tangent", 4, 2, 5, 2),
    Sketcher.Constraint("Tangent", 5, 1, 6, 1),
    Sketcher.Constraint("Tangent", 6, 2, 7, 2),
    Sketcher.Constraint("Tangent", 7, 1, 0, 1),
    Sketcher.Constraint("Horizontal", 0),
    Sketcher.Constraint("Vertical", 2),
    Sketcher.Constraint("Horizontal", 4),
    Sketcher.Constraint("Vertical", 6),
    Sketcher.Constraint("Equal", 3, 5),
    Sketcher.Constraint("Equal", 1, 7),
    Sketcher.Constraint("Radius", 1, 2.0),
    Sketcher.Constraint("Radius", 3, 0.5),
    Sketcher.Constraint("DistanceX", 0, 2, 0, 1, 3.5),
    Sketcher.Constraint("DistanceY", 2, 1, 2, 2, 0.5),
    Sketcher.Constraint("DistanceY", -1, 1, 1, 3, 3.0),
    Sketcher.Constraint("DistanceX", 1, 3, -1, 1, 1.75),
])
pad8 = body.newObject("PartDesign::Pad", "Pad007")
pad8.Profile = sketch9
pad8.Length = 1

sketch10 = body.newObject("Sketcher::SketchObject", "Sketch009")
sketch10.AttachmentSupport = (doc.getObject("XY_Plane"), [""])
sketch10.MapMode = "FlatFace"
sketch10.AttachmentOffset = App.Placement(App.Vector(0, 0, -26.5), App.Rotation())
sketch10.addGeometry([
    Part.LineSegment(App.Vector(-3.25, 3.9, 0), App.Vector(3.25, 3.9, 0)),
    Part.ArcOfCircle(Part.Circle(App.Vector(3.25, 3.5, 0), App.Vector(0, 0, 1), 0.4), math.radians(0), math.radians(90)),
    Part.LineSegment(App.Vector(3.65, 3.5, 0), App.Vector(3.65, 3, 0)),
    Part.ArcOfCircle(Part.Circle(App.Vector(1.75, 3, 0), App.Vector(0, 0, 1), 1.9), math.radians(-90), math.radians(0)),
    Part.LineSegment(App.Vector(1.75, 1.1, 0), App.Vector(-1.75, 1.1, 0)),
    Part.ArcOfCircle(Part.Circle(App.Vector(-1.75, 3, 0), App.Vector(0, 0, 1), 1.9), math.radians(-180), math.radians(-90)),
    Part.LineSegment(App.Vector(-3.65, 3, 0), App.Vector(-3.65, 3.5, 0)),
    Part.ArcOfCircle(Part.Circle(App.Vector(-3.25, 3.5, 0), App.Vector(0, 0, 1), 0.4), math.radians(90), math.radians(180)),
], False)
sketch10.addConstraint([
    Sketcher.Constraint("Tangent", 0, 2, 1, 2),
    Sketcher.Constraint("Tangent", 1, 1, 2, 1),
    Sketcher.Constraint("Tangent", 2, 2, 3, 2),
    Sketcher.Constraint("Tangent", 3, 1, 4, 1),
    Sketcher.Constraint("Tangent", 4, 2, 5, 2),
    Sketcher.Constraint("Tangent", 5, 1, 6, 1),
    Sketcher.Constraint("Tangent", 6, 2, 7, 2),
    Sketcher.Constraint("Tangent", 7, 1, 0, 1),
    Sketcher.Constraint("Horizontal", 0),
    Sketcher.Constraint("Vertical", 2),
    Sketcher.Constraint("Horizontal", 4),
    Sketcher.Constraint("Vertical", 6),
    Sketcher.Constraint("Equal", 3, 5),
    Sketcher.Constraint("Equal", 1, 7),
    Sketcher.Constraint("Radius", 1, 0.4),
    Sketcher.Constraint("Radius", 3, 1.9),
    Sketcher.Constraint("DistanceX", 0, 1, 0, 2, 6.5),
    Sketcher.Constraint("DistanceY", 2, 2, 2, 1, 0.5),
    Sketcher.Constraint("DistanceY", -1, 1, 3, 3, 3.0),
    Sketcher.Constraint("DistanceX", -1, 1, 1, 3, 3.25),
])
pocket2 = body.newObject("PartDesign::Pocket", "Pocket001")
pocket2.Profile = sketch10
pocket2.Length = 4.8
pocket2.Reversed = True

sketch11 = body.newObject("Sketcher::SketchObject", "Sketch010")
sketch11.AttachmentSupport = (doc.getObject("XY_Plane"), [""])
sketch11.MapMode = "FlatFace"
sketch11.AttachmentOffset = App.Placement(App.Vector(0, 0, -21.7), App.Rotation())
sketch11.addGeometry([
    Part.LineSegment(App.Vector(1.5, 3.25, 0), App.Vector(1.5, 3.05, 0)),
    Part.LineSegment(App.Vector(1.5, 3.05, 0), App.Vector(-1.5, 3.05, 0)),
    Part.LineSegment(App.Vector(-1.5, 3.05, 0), App.Vector(-1.5, 3.25, 0)),
    Part.LineSegment(App.Vector(-1.5, 3.25, 0), App.Vector(1.5, 3.25, 0)),
], False)
sketch11.addConstraint([
    Sketcher.Constraint("Coincident", 0, 2, 1, 1),
    Sketcher.Constraint("Coincident", 1, 2, 2, 1),
    Sketcher.Constraint("Coincident", 2, 2, 3, 1),
    Sketcher.Constraint("Coincident", 3, 2, 0, 1),
    Sketcher.Constraint("Vertical", 0),
    Sketcher.Constraint("Horizontal", 1),
    Sketcher.Constraint("Vertical", 2),
    Sketcher.Constraint("Horizontal", 3),
    Sketcher.Constraint("DistanceX", 1, 2, 1, 1, 3.0),
    Sketcher.Constraint("DistanceY", 0, 2, 0, 1, 0.2),
    Sketcher.Constraint("DistanceX", -1, 1, 0, 2, 1.5),
    Sketcher.Constraint("DistanceY", -1, 1, 0, 2, 3.05),
])
pad9 = body.newObject("PartDesign::Pad", "Pad008")
pad9.Profile = sketch11
pad9.Length = 3
pad9.Reversed = True

doc.recompute()
